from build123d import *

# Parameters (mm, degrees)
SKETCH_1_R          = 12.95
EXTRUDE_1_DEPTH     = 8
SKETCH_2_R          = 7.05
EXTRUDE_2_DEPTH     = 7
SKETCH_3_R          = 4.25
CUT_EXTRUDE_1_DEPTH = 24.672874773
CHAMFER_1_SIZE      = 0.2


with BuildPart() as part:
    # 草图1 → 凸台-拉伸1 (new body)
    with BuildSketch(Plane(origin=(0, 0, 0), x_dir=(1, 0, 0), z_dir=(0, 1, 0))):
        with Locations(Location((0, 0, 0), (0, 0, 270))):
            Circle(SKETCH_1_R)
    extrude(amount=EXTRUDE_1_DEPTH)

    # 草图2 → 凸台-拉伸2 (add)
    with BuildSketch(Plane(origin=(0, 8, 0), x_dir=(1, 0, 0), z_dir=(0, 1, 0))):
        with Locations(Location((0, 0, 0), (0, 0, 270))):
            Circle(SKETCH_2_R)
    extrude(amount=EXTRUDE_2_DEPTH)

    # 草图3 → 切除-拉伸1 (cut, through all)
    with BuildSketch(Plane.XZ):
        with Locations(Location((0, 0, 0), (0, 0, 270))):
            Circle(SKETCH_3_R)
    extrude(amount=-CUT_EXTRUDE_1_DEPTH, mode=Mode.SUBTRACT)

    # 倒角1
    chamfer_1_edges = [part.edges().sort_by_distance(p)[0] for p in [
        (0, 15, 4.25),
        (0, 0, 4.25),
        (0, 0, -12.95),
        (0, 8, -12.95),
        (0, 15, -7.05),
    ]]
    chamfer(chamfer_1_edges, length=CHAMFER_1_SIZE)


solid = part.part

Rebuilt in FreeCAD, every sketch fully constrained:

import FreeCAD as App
import Part
import Sketcher
from FreeCAD import Vector


def edges_at(feature, points):
    """Names of the edges that pass closest to the given points."""
    edges = feature.Shape.Edges
    near = lambda p: min(range(len(edges)), key=lambda i: edges[i].distToShape(Part.Vertex(*p))[0])
    return sorted({f"Edge{near(p) + 1}" for p in points})

doc = App.newDocument("Part")
body = doc.addObject("PartDesign::Body", "Body")

# Sketch on XZ plane
sketch1 = body.newObject("Sketcher::SketchObject", "Sketch")
sketch1.AttachmentSupport = (doc.getObject("XZ_Plane"), [""])
sketch1.MapMode = "FlatFace"
sketch1.addGeometry(Part.Circle(Vector(0, 0, 0), Vector(0, 0, 1), 13), False)
sketch1.addConstraint([
    Sketcher.Constraint("Coincident", 0, 3, -1, 1),
    Sketcher.Constraint("Diameter", 0, 25.9),
])
pad1 = body.newObject("PartDesign::Pad", "Pad")
pad1.Profile = sketch1
pad1.Length = 8
pad1.Reversed = True

# Sketch on XZ plane
sketch2 = body.newObject("Sketcher::SketchObject", "Sketch001")
sketch2.AttachmentSupport = (doc.getObject("XZ_Plane"), [""])
sketch2.MapMode = "FlatFace"
sketch2.AttachmentOffset = App.Placement(Vector(0, 0, -8), App.Rotation())
sketch2.addGeometry(Part.Circle(Vector(0, 0, 0), Vector(0, 0, 1), 7), False)
sketch2.addConstraint([
    Sketcher.Constraint("Coincident", 0, 3, -1, 1),
    Sketcher.Constraint("Diameter", 0, 14.1),
])
pad2 = body.newObject("PartDesign::Pad", "Pad001")
pad2.Profile = sketch2
pad2.Length = 7
pad2.Reversed = True

# Sketch on XZ plane
sketch3 = body.newObject("Sketcher::SketchObject", "Sketch002")
sketch3.AttachmentSupport = (doc.getObject("XZ_Plane"), [""])
sketch3.MapMode = "FlatFace"
sketch3.addGeometry(Part.Circle(Vector(0, 0, 0), Vector(0, 0, 1), 4.2), False)
sketch3.addConstraint([
    Sketcher.Constraint("Coincident", 0, 3, -1, 1),
    Sketcher.Constraint("Diameter", 0, 8.5),
])
pocket1 = body.newObject("PartDesign::Pocket", "Pocket")
pocket1.Profile = sketch3
pocket1.Type = "ThroughAll"
doc.recompute()

chamfer = body.newObject("PartDesign::Chamfer", "Chamfer")
chamfer.Base = (pocket1, edges_at(pocket1, [
    (0, 15, 4.25),
    (0, 0, 4.25),
    (0, 0, -12.95),
    (0, 8, -12.95),
    (0, 15, -7.05),
]))
chamfer.Size = 0.2

doc.recompute()
